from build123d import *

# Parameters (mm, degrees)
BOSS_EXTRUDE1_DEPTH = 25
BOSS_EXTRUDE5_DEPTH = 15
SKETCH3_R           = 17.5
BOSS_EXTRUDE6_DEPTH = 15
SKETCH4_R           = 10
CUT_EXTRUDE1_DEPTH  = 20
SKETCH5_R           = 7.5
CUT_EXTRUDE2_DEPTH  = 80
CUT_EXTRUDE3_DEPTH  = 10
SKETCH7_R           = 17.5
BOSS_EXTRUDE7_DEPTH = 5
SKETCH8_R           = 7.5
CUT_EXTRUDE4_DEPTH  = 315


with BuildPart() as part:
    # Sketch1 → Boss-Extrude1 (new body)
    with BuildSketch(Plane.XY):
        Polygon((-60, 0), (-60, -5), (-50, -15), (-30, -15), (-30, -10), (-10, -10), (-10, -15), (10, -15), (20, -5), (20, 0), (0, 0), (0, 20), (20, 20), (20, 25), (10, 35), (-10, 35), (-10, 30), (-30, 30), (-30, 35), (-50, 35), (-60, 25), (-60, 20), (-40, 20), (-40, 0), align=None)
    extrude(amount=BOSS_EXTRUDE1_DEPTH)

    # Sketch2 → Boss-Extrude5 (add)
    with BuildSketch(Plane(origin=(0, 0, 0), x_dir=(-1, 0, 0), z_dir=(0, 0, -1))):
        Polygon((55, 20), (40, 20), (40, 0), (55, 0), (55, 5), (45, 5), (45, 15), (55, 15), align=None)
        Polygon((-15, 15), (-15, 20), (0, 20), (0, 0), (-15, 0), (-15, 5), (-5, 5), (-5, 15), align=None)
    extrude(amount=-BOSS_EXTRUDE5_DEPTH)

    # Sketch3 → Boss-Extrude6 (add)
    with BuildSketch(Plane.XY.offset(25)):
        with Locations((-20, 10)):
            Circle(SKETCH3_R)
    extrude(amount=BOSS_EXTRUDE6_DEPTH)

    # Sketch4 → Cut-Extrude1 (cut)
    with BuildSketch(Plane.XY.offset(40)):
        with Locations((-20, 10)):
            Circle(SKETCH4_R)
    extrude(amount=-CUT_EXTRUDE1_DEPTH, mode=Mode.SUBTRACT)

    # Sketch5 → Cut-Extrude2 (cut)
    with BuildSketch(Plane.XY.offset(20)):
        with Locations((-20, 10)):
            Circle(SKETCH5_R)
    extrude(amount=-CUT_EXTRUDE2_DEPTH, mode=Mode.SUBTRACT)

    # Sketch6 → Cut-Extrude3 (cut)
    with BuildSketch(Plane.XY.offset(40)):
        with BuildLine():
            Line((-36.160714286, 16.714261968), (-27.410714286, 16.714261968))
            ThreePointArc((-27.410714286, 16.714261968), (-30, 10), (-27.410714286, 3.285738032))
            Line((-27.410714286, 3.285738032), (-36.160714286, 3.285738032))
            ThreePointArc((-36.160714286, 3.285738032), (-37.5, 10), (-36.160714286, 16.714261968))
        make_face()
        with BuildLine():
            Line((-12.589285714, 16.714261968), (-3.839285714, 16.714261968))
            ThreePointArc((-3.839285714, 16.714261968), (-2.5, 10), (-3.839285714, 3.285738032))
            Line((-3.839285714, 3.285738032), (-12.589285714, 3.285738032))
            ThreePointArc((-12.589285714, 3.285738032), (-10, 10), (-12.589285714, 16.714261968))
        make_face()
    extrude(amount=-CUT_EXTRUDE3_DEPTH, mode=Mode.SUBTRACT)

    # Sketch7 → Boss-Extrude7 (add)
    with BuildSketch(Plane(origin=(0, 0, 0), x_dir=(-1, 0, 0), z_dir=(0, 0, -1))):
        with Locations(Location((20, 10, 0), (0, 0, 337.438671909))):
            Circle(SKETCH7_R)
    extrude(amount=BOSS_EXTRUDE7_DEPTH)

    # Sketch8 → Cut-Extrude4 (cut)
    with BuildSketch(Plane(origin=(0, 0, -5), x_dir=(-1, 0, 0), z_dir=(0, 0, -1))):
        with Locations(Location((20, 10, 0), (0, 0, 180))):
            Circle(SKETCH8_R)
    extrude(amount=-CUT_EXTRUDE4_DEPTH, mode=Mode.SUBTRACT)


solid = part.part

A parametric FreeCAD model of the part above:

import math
import FreeCAD as App
import Part
import Sketcher

V = App.Vector
Q = App.Units.Quantity

doc = App.newDocument("Part")
body = doc.addObject("PartDesign::Body", "Body")

# Sketch on XY plane
sketch1 = doc.addObject("Sketcher::SketchObject", "Sketch")
body.addObject(sketch1)
sketch1.AttachmentSupport = (doc.XY_Plane, [""])
sketch1.MapMode = "FlatFace"
sketch1.addGeometry([
    Part.LineSegment(V(-60, 0, 0), V(-60, -5, 0)),  # 0
    Part.LineSegment(V(-60, -5, 0), V(-50, -15, 0)),  # 1
    Part.LineSegment(V(-50, -15, 0), V(-30, -15, 0)),  # 2
    Part.LineSegment(V(-30, -15, 0), V(-30, -10, 0)),  # 3
    Part.LineSegment(V(-30, -10, 0), V(-10, -10, 0)),  # 4
    Part.LineSegment(V(-10, -10, 0), V(-10, -15, 0)),  # 5
    Part.LineSegment(V(-10, -15, 0), V(10, -15, 0)),  # 6
    Part.LineSegment(V(10, -15, 0), V(20, -5, 0)),  # 7
    Part.LineSegment(V(20, -5, 0), V(20, 0, 0)),  # 8
    Part.LineSegment(V(20, 0, 0), V(0, 0, 0)),  # 9
    Part.LineSegment(V(0, 0, 0), V(0, 20, 0)),  # 10
    Part.LineSegment(V(0, 20, 0), V(20, 20, 0)),  # 11
    Part.LineSegment(V(20, 20, 0), V(20, 25, 0)),  # 12
    Part.LineSegment(V(20, 25, 0), V(10, 35, 0)),  # 13
    Part.LineSegment(V(10, 35, 0), V(-10, 35, 0)),  # 14
    Part.LineSegment(V(-10, 35, 0), V(-10, 30, 0)),  # 15
    Part.LineSegment(V(-10, 30, 0), V(-30, 30, 0)),  # 16
    Part.LineSegment(V(-30, 30, 0), V(-30, 35, 0)),  # 17
    Part.LineSegment(V(-30, 35, 0), V(-50, 35, 0)),  # 18
    Part.LineSegment(V(-50, 35, 0), V(-60, 25, 0)),  # 19
    Part.LineSegment(V(-60, 25, 0), V(-60, 20, 0)),  # 20
    Part.LineSegment(V(-60, 20, 0), V(-40, 20, 0)),  # 21
    Part.LineSegment(V(-40, 20, 0), V(-40, 0, 0)),  # 22
    Part.LineSegment(V(-40, 0, 0), V(-60, 0, 0)),  # 23
], False)
sketch1.addConstraint([
    Sketcher.Constraint("Coincident", 0, 2, 1, 1),
    Sketcher.Constraint("Coincident", 1, 2, 2, 1),
    Sketcher.Constraint("Coincident", 2, 2, 3, 1),
    Sketcher.Constraint("Coincident", 3, 2, 4, 1),
    Sketcher.Constraint("Coincident", 4, 2, 5, 1),
    Sketcher.Constraint("Coincident", 5, 2, 6, 1),
    Sketcher.Constraint("Coincident", 6, 2, 7, 1),
    Sketcher.Constraint("Coincident", 7, 2, 8, 1),
    Sketcher.Constraint("Coincident", 8, 2, 9, 1),
    Sketcher.Constraint("Coincident", 9, 2, 10, 1),
    Sketcher.Constraint("Coincident", 10, 2, 11, 1),
    Sketcher.Constraint("Coincident", 11, 2, 12, 1),
    Sketcher.Constraint("Coincident", 12, 2, 13, 1),
    Sketcher.Constraint("Coincident", 13, 2, 14, 1),
    Sketcher.Constraint("Coincident", 14, 2, 15, 1),
    Sketcher.Constraint("Coincident", 15, 2, 16, 1),
    Sketcher.Constraint("Coincident", 16, 2, 17, 1),
    Sketcher.Constraint("Coincident", 17, 2, 18, 1),
    Sketcher.Constraint("Coincident", 18, 2, 19, 1),
    Sketcher.Constraint("Coincident", 19, 2, 20, 1),
    Sketcher.Constraint("Coincident", 20, 2, 21, 1),
    Sketcher.Constraint("Coincident", 21, 2, 22, 1),
    Sketcher.Constraint("Coincident", 22, 2, 23, 1),
    Sketcher.Constraint("Coincident", 23, 2, 0, 1),
    Sketcher.Constraint("Vertical", 0),
    Sketcher.Constraint("Horizontal", 2),
    Sketcher.Constraint("Vertical", 3),
    Sketcher.Constraint("Horizontal", 4),
    Sketcher.Constraint("Vertical", 5),
    Sketcher.Constraint("Horizontal", 6),
    Sketcher.Constraint("Vertical", 8),
    Sketcher.Constraint("Horizontal", 9),
    Sketcher.Constraint("Vertical", 10),
    Sketcher.Constraint("Horizontal", 11),
    Sketcher.Constraint("Vertical", 12),
    Sketcher.Constraint("Horizontal", 14),
    Sketcher.Constraint("Vertical", 15),
    Sketcher.Constraint("Horizontal", 16),
    Sketcher.Constraint("Vertical", 17),
    Sketcher.Constraint("Horizontal", 18),
    Sketcher.Constraint("Vertical", 20),
    Sketcher.Constraint("Horizontal", 21),
    Sketcher.Constraint("Vertical", 22),
    Sketcher.Constraint("Horizontal", 23),
    Sketcher.Constraint("Coincident", 9, 2, -1, 1),
    Sketcher.Constraint("PointOnObject", 22, 2, -1),
    Sketcher.Constraint("Perpendicular", 1, 7),
    Sketcher.Constraint("Perpendicular", 7, 13),
    Sketcher.Constraint("Perpendicular", 13, 19),
    Sketcher.Constraint("Horizontal", 2, 2, 5, 2),
    Sketcher.Constraint("Horizontal", 0, 2, 7, 2),
    Sketcher.Constraint("Horizontal", 14, 2, 17, 2),
    Sketcher.Constraint("Horizontal", 12, 2, 19, 2),
    Sketcher.Constraint("Horizontal", 11, 2, 20, 2),
    Sketcher.Constraint("Vertical", 8, 2, 11, 2),
    Sketcher.Constraint("Vertical", 6, 2, 13, 2),
    Sketcher.Constraint("Vertical", 5, 2, 14, 2),
    Sketcher.Constraint("Vertical", 3, 2, 16, 2),
    Sketcher.Constraint("Vertical", 1, 2, 18, 2),
    Sketcher.Constraint("Vertical", 0, 2, 19, 2),
    Sketcher.Constraint("Equal", 2, 4),
    Sketcher.Constraint("Equal", 4, 6),
    Sketcher.Constraint("Equal", 6, 9),
    Sketcher.Constraint("Equal", 18, 21),
    Sketcher.Constraint("Equal", 0, 3),
    Sketcher.Constraint("Equal", 23, 10),
    Sketcher.Constraint("Equal", 8, 12),
    Sketcher.Constraint("Equal", 12, 15),
    Sketcher.Constraint("DistanceX", 2, 1, 2, 2, Q("20 mm")),
    Sketcher.Constraint("DistanceY", 0, 2, 0, 1, Q("5 mm")),
    Sketcher.Constraint("DistanceX", 0, 2, -1, 1, Q("60 mm")),
])
pad1 = doc.addObject("PartDesign::Pad", "Pad")
body.addObject(pad1)
pad1.Profile = sketch1
pad1.Length = 25

# Sketch on XY plane
sketch2 = doc.addObject("Sketcher::SketchObject", "Sketch001")
body.addObject(sketch2)
sketch2.AttachmentSupport = (doc.XY_Plane, [""])
sketch2.MapMode = "FlatFace"
sketch2.addGeometry([
    Part.LineSegment(V(-55, 20, 0), V(-40, 20, 0)),  # 0
    Part.LineSegment(V(-40, 20, 0), V(-40, 0, 0)),  # 1
    Part.LineSegment(V(-40, 0, 0), V(-55, 0, 0)),  # 2
    Part.LineSegment(V(-55, 0, 0), V(-55, 5, 0)),  # 3
    Part.LineSegment(V(-55, 5, 0), V(-45, 5, 0)),  # 4
    Part.LineSegment(V(-45, 5, 0), V(-45, 15, 0)),  # 5
    Part.LineSegment(V(-45, 15, 0), V(-55, 15, 0)),  # 6
    Part.LineSegment(V(-55, 15, 0), V(-55, 20, 0)),  # 7
    Part.LineSegment(V(15, 20, 0), V(15, 15, 0)),  # 8
    Part.LineSegment(V(15, 15, 0), V(5, 15, 0)),  # 9
    Part.LineSegment(V(5, 15, 0), V(5, 5, 0)),  # 10
    Part.LineSegment(V(5, 5, 0), V(15, 5, 0)),  # 11
    Part.LineSegment(V(15, 5, 0), V(15, 0, 0)),  # 12
    Part.LineSegment(V(15, 0, 0), V(0, 0, 0)),  # 13
    Part.LineSegment(V(0, 0, 0), V(0, 20, 0)),  # 14
    Part.LineSegment(V(0, 20, 0), V(15, 20, 0)),  # 15
], False)
sketch2.addConstraint([
    Sketcher.Constraint("Coincident", 0, 2, 1, 1),
    Sketcher.Constraint("Coincident", 1, 2, 2, 1),
    Sketcher.Constraint("Coincident", 2, 2, 3, 1),
    Sketcher.Constraint("Coincident", 3, 2, 4, 1),
    Sketcher.Constraint("Coincident", 4, 2, 5, 1),
    Sketcher.Constraint("Coincident", 5, 2, 6, 1),
    Sketcher.Constraint("Coincident", 6, 2, 7, 1),
    Sketcher.Constraint("Coincident", 7, 2, 0, 1),
    Sketcher.Constraint("Coincident", 8, 2, 9, 1),
    Sketcher.Constraint("Coincident", 9, 2, 10, 1),
    Sketcher.Constraint("Coincident", 10, 2, 11, 1),
    Sketcher.Constraint("Coincident", 11, 2, 12, 1),
    Sketcher.Constraint("Coincident", 12, 2, 13, 1),
    Sketcher.Constraint("Coincident", 13, 2, 14, 1),
    Sketcher.Constraint("Coincident", 14, 2, 15, 1),
    Sketcher.Constraint("Coincident", 15, 2, 8, 1),
    Sketcher.Constraint("Horizontal", 0),
    Sketcher.Constraint("Vertical", 1),
    Sketcher.Constraint("Horizontal", 2),
    Sketcher.Constraint("Vertical", 3),
    Sketcher.Constraint("Horizontal", 4),
    Sketcher.Constraint("Vertical", 5),
    Sketcher.Constraint("Horizontal", 6),
    Sketcher.Constraint("Vertical", 7),
    Sketcher.Constraint("Vertical", 8),
    Sketcher.Constraint("Horizontal", 9),
    Sketcher.Constraint("Vertical", 10),
    Sketcher.Constraint("Horizontal", 11),
    Sketcher.Constraint("Vertical", 12),
    Sketcher.Constraint("Horizontal", 13),
    Sketcher.Constraint("Vertical", 14),
    Sketcher.Constraint("Horizontal", 15),
    Sketcher.Constraint("Coincident", 13, 2, -1, 1),
    Sketcher.Constraint("PointOnObject", 1, 2, -1),
    Sketcher.Constraint("Horizontal", 6, 2, 8, 2),
    Sketcher.Constraint("Horizontal", 4, 2, 10, 2),
    Sketcher.Constraint("Horizontal", 7, 2, 14, 2),
    Sketcher.Constraint("Vertical", 3, 2, 6, 2),
    Sketcher.Constraint("Vertical", 8, 2, 11, 2),
    Sketcher.Constraint("Equal", 6, 9),
    Sketcher.Constraint("Equal", 2, 13),
    Sketcher.Constraint("Equal", 11, 5),
    Sketcher.Constraint("Equal", 3, 7),
    Sketcher.Constraint("DistanceX", 0, 1, 0, 2, Q("15 mm")),
    Sketcher.Constraint("DistanceX", 4, 1, 4, 2, Q("10 mm")),
    Sketcher.Constraint("DistanceY", 1, 2, 1, 1, Q("20 mm")),
    Sketcher.Constraint("DistanceX", 0, 2, -1, 1, Q("40 mm")),
])
pad2 = doc.addObject("PartDesign::Pad", "Pad001")
body.addObject(pad2)
pad2.Profile = sketch2
pad2.Length = 15

# Sketch on XY plane
sketch3 = doc.addObject("Sketcher::SketchObject", "Sketch002")
body.addObject(sketch3)
sketch3.AttachmentSupport = (doc.XY_Plane, [""])
sketch3.MapMode = "FlatFace"
sketch3.AttachmentOffset = App.Placement(V(0, 0, 25), App.Rotation())
sketch3.addGeometry(Part.Circle(V(-20, 10, 0), V(0, 0, 1), 17.5), False)
sketch3.addConstraint([
    Sketcher.Constraint("Diameter", 0, Q("35 mm")),
    Sketcher.Constraint("DistanceX", 0, 3, -1, 1, Q("20 mm")),
    Sketcher.Constraint("DistanceY", -1, 1, 0, 3, Q("10 mm")),
])
pad3 = doc.addObject("PartDesign::Pad", "Pad002")
body.addObject(pad3)
pad3.Profile = sketch3
pad3.Length = 15

# Sketch on XY plane
sketch4 = doc.addObject("Sketcher::SketchObject", "Sketch003")
body.addObject(sketch4)
sketch4.AttachmentSupport = (doc.XY_Plane, [""])
sketch4.MapMode = "FlatFace"
sketch4.AttachmentOffset = App.Placement(V(0, 0, 40), App.Rotation())
sketch4.addGeometry(Part.Circle(V(-20, 10, 0), V(0, 0, 1), 10), False)
sketch4.addConstraint([
    Sketcher.Constraint("Diameter", 0, Q("20 mm")),
    Sketcher.Constraint("DistanceX", 0, 3, -1, 1, Q("20 mm")),
    Sketcher.Constraint("DistanceY", -1, 1, 0, 3, Q("10 mm")),
])
pocket1 = doc.addObject("PartDesign::Pocket", "Pocket")
body.addObject(pocket1)
pocket1.Profile = sketch4
pocket1.Length = 20

# Sketch on XY plane
sketch5 = doc.addObject("Sketcher::SketchObject", "Sketch004")
body.addObject(sketch5)
sketch5.AttachmentSupport = (doc.XY_Plane, [""])
sketch5.MapMode = "FlatFace"
sketch5.AttachmentOffset = App.Placement(V(0, 0, 20), App.Rotation())
sketch5.addGeometry(Part.Circle(V(-20, 10, 0), V(0, 0, 1), 7.5), False)
sketch5.addConstraint([
    Sketcher.Constraint("Diameter", 0, Q("15 mm")),
    Sketcher.Constraint("DistanceX", 0, 3, -1, 1, Q("20 mm")),
    Sketcher.Constraint("DistanceY", -1, 1, 0, 3, Q("10 mm")),
])
pocket2 = doc.addObject("PartDesign::Pocket", "Pocket001")
body.addObject(pocket2)
pocket2.Profile = sketch5
pocket2.Length = 80

# Sketch on XY plane
sketch6 = doc.addObject("Sketcher::SketchObject", "Sketch005")
body.addObject(sketch6)
sketch6.AttachmentSupport = (doc.XY_Plane, [""])
sketch6.MapMode = "FlatFace"
sketch6.AttachmentOffset = App.Placement(V(0, 0, 40), App.Rotation())
sketch6.addGeometry([
    Part.LineSegment(V(-27.410714, 16.714262, 0), V(-36.160714, 16.714262, 0)),  # 0
    Part.ArcOfCircle(Part.Circle(V(-20, 10, 0), V(0, 0, 1), 17.5), math.radians(157.438672), math.radians(202.561328)),  # 1
    Part.LineSegment(V(-36.160714, 3.285738, 0), V(-27.410714, 3.285738, 0)),  # 2
    Part.ArcOfCircle(Part.Circle(V(-20, 10, 0), V(0, 0, 1), 10), math.radians(137.822765), math.radians(222.177235)),  # 3
    Part.LineSegment(V(-3.839286, 16.714262, 0), V(-12.589286, 16.714262, 0)),  # 4
    Part.ArcOfCircle(Part.Circle(V(-20, 10, 0), V(0, 0, 1), 10), math.radians(-42.177235), math.radians(42.177235)),  # 5
    Part.LineSegment(V(-12.589286, 3.285738, 0), V(-3.839286, 3.285738, 0)),  # 6
    Part.ArcOfCircle(Part.Circle(V(-20, 10, 0), V(0, 0, 1), 17.5), math.radians(-22.561328), math.radians(22.561328)),  # 7
], False)
sketch6.addConstraint([
    Sketcher.Constraint("Coincident", 0, 2, 1, 1),
    Sketcher.Constraint("Coincident", 1, 2, 2, 1),
    Sketcher.Constraint("Coincident", 2, 2, 3, 2),
    Sketcher.Constraint("Coincident", 3, 1, 0, 1),
    Sketcher.Constraint("Coincident", 4, 2, 5, 2),
    Sketcher.Constraint("Coincident", 5, 1, 6, 1),
    Sketcher.Constraint("Coincident", 6, 2, 7, 1),
    Sketcher.Constraint("Coincident", 7, 2, 4, 1),
    Sketcher.Constraint("Horizontal", 0),
    Sketcher.Constraint("Horizontal", 2),
    Sketcher.Constraint("Horizontal", 4),
    Sketcher.Constraint("Horizontal", 6),
    Sketcher.Constraint("Coincident", 3, 3, 1, 3),
    Sketcher.Constraint("Coincident", 5, 3, 1, 3),
    Sketcher.Constraint("Coincident", 7, 3, 1, 3),
    Sketcher.Constraint("Equal", 3, 5),
    Sketcher.Constraint("Equal", 1, 7),
    Sketcher.Constraint("Horizontal", 3, 1, 4, 2),
    Sketcher.Constraint("Horizontal", 2, 2, 5, 1),
    Sketcher.Constraint("Vertical", 0, 2, 1, 2),
    Sketcher.Constraint("Radius", 3, Q("10 mm")),
    Sketcher.Constraint("Radius", 1, Q("17.5 mm")),
    Sketcher.Constraint("DistanceX", 1, 3, -1, 1, Q("20 mm")),
    Sketcher.Constraint("DistanceY", -1, 1, 1, 3, Q("10 mm")),
    Sketcher.Constraint("DistanceX", 0, 2, 0, 1, Q("8.75 mm")),
])
pocket3 = doc.addObject("PartDesign::Pocket", "Pocket002")
body.addObject(pocket3)
pocket3.Profile = sketch6
pocket3.Length = 10

# Sketch on XY plane
sketch7 = doc.addObject("Sketcher::SketchObject", "Sketch006")
body.addObject(sketch7)
sketch7.AttachmentSupport = (doc.XY_Plane, [""])
sketch7.MapMode = "FlatFace"
sketch7.addGeometry(Part.Circle(V(-20, 10, 0), V(0, 0, 1), 17.5), False)
sketch7.addConstraint([
    Sketcher.Constraint("Diameter", 0, Q("35 mm")),
    Sketcher.Constraint("DistanceX", 0, 3, -1, 1, Q("20 mm")),
    Sketcher.Constraint("DistanceY", -1, 1, 0, 3, Q("10 mm")),
])
pad4 = doc.addObject("PartDesign::Pad", "Pad003")
body.addObject(pad4)
pad4.Profile = sketch7
pad4.Length = 5
pad4.Reversed = True

# Sketch on XY plane
sketch8 = doc.addObject("Sketcher::SketchObject", "Sketch007")
body.addObject(sketch8)
sketch8.AttachmentSupport = (doc.XY_Plane, [""])
sketch8.MapMode = "FlatFace"
sketch8.AttachmentOffset = App.Placement(V(0, 0, -5), App.Rotation())
sketch8.addGeometry(Part.Circle(V(-20, 10, 0), V(0, 0, 1), 7.5), False)
sketch8.addConstraint([
    Sketcher.Constraint("Diameter", 0, Q("15 mm")),
    Sketcher.Constraint("DistanceX", 0, 3, -1, 1, Q("20 mm")),
    Sketcher.Constraint("DistanceY", -1, 1, 0, 3, Q("10 mm")),
])
pocket4 = doc.addObject("PartDesign::Pocket", "Pocket003")
body.addObject(pocket4)
pocket4.Profile = sketch8
pocket4.Length = 315
pocket4.Reversed = True

doc.recompute()
